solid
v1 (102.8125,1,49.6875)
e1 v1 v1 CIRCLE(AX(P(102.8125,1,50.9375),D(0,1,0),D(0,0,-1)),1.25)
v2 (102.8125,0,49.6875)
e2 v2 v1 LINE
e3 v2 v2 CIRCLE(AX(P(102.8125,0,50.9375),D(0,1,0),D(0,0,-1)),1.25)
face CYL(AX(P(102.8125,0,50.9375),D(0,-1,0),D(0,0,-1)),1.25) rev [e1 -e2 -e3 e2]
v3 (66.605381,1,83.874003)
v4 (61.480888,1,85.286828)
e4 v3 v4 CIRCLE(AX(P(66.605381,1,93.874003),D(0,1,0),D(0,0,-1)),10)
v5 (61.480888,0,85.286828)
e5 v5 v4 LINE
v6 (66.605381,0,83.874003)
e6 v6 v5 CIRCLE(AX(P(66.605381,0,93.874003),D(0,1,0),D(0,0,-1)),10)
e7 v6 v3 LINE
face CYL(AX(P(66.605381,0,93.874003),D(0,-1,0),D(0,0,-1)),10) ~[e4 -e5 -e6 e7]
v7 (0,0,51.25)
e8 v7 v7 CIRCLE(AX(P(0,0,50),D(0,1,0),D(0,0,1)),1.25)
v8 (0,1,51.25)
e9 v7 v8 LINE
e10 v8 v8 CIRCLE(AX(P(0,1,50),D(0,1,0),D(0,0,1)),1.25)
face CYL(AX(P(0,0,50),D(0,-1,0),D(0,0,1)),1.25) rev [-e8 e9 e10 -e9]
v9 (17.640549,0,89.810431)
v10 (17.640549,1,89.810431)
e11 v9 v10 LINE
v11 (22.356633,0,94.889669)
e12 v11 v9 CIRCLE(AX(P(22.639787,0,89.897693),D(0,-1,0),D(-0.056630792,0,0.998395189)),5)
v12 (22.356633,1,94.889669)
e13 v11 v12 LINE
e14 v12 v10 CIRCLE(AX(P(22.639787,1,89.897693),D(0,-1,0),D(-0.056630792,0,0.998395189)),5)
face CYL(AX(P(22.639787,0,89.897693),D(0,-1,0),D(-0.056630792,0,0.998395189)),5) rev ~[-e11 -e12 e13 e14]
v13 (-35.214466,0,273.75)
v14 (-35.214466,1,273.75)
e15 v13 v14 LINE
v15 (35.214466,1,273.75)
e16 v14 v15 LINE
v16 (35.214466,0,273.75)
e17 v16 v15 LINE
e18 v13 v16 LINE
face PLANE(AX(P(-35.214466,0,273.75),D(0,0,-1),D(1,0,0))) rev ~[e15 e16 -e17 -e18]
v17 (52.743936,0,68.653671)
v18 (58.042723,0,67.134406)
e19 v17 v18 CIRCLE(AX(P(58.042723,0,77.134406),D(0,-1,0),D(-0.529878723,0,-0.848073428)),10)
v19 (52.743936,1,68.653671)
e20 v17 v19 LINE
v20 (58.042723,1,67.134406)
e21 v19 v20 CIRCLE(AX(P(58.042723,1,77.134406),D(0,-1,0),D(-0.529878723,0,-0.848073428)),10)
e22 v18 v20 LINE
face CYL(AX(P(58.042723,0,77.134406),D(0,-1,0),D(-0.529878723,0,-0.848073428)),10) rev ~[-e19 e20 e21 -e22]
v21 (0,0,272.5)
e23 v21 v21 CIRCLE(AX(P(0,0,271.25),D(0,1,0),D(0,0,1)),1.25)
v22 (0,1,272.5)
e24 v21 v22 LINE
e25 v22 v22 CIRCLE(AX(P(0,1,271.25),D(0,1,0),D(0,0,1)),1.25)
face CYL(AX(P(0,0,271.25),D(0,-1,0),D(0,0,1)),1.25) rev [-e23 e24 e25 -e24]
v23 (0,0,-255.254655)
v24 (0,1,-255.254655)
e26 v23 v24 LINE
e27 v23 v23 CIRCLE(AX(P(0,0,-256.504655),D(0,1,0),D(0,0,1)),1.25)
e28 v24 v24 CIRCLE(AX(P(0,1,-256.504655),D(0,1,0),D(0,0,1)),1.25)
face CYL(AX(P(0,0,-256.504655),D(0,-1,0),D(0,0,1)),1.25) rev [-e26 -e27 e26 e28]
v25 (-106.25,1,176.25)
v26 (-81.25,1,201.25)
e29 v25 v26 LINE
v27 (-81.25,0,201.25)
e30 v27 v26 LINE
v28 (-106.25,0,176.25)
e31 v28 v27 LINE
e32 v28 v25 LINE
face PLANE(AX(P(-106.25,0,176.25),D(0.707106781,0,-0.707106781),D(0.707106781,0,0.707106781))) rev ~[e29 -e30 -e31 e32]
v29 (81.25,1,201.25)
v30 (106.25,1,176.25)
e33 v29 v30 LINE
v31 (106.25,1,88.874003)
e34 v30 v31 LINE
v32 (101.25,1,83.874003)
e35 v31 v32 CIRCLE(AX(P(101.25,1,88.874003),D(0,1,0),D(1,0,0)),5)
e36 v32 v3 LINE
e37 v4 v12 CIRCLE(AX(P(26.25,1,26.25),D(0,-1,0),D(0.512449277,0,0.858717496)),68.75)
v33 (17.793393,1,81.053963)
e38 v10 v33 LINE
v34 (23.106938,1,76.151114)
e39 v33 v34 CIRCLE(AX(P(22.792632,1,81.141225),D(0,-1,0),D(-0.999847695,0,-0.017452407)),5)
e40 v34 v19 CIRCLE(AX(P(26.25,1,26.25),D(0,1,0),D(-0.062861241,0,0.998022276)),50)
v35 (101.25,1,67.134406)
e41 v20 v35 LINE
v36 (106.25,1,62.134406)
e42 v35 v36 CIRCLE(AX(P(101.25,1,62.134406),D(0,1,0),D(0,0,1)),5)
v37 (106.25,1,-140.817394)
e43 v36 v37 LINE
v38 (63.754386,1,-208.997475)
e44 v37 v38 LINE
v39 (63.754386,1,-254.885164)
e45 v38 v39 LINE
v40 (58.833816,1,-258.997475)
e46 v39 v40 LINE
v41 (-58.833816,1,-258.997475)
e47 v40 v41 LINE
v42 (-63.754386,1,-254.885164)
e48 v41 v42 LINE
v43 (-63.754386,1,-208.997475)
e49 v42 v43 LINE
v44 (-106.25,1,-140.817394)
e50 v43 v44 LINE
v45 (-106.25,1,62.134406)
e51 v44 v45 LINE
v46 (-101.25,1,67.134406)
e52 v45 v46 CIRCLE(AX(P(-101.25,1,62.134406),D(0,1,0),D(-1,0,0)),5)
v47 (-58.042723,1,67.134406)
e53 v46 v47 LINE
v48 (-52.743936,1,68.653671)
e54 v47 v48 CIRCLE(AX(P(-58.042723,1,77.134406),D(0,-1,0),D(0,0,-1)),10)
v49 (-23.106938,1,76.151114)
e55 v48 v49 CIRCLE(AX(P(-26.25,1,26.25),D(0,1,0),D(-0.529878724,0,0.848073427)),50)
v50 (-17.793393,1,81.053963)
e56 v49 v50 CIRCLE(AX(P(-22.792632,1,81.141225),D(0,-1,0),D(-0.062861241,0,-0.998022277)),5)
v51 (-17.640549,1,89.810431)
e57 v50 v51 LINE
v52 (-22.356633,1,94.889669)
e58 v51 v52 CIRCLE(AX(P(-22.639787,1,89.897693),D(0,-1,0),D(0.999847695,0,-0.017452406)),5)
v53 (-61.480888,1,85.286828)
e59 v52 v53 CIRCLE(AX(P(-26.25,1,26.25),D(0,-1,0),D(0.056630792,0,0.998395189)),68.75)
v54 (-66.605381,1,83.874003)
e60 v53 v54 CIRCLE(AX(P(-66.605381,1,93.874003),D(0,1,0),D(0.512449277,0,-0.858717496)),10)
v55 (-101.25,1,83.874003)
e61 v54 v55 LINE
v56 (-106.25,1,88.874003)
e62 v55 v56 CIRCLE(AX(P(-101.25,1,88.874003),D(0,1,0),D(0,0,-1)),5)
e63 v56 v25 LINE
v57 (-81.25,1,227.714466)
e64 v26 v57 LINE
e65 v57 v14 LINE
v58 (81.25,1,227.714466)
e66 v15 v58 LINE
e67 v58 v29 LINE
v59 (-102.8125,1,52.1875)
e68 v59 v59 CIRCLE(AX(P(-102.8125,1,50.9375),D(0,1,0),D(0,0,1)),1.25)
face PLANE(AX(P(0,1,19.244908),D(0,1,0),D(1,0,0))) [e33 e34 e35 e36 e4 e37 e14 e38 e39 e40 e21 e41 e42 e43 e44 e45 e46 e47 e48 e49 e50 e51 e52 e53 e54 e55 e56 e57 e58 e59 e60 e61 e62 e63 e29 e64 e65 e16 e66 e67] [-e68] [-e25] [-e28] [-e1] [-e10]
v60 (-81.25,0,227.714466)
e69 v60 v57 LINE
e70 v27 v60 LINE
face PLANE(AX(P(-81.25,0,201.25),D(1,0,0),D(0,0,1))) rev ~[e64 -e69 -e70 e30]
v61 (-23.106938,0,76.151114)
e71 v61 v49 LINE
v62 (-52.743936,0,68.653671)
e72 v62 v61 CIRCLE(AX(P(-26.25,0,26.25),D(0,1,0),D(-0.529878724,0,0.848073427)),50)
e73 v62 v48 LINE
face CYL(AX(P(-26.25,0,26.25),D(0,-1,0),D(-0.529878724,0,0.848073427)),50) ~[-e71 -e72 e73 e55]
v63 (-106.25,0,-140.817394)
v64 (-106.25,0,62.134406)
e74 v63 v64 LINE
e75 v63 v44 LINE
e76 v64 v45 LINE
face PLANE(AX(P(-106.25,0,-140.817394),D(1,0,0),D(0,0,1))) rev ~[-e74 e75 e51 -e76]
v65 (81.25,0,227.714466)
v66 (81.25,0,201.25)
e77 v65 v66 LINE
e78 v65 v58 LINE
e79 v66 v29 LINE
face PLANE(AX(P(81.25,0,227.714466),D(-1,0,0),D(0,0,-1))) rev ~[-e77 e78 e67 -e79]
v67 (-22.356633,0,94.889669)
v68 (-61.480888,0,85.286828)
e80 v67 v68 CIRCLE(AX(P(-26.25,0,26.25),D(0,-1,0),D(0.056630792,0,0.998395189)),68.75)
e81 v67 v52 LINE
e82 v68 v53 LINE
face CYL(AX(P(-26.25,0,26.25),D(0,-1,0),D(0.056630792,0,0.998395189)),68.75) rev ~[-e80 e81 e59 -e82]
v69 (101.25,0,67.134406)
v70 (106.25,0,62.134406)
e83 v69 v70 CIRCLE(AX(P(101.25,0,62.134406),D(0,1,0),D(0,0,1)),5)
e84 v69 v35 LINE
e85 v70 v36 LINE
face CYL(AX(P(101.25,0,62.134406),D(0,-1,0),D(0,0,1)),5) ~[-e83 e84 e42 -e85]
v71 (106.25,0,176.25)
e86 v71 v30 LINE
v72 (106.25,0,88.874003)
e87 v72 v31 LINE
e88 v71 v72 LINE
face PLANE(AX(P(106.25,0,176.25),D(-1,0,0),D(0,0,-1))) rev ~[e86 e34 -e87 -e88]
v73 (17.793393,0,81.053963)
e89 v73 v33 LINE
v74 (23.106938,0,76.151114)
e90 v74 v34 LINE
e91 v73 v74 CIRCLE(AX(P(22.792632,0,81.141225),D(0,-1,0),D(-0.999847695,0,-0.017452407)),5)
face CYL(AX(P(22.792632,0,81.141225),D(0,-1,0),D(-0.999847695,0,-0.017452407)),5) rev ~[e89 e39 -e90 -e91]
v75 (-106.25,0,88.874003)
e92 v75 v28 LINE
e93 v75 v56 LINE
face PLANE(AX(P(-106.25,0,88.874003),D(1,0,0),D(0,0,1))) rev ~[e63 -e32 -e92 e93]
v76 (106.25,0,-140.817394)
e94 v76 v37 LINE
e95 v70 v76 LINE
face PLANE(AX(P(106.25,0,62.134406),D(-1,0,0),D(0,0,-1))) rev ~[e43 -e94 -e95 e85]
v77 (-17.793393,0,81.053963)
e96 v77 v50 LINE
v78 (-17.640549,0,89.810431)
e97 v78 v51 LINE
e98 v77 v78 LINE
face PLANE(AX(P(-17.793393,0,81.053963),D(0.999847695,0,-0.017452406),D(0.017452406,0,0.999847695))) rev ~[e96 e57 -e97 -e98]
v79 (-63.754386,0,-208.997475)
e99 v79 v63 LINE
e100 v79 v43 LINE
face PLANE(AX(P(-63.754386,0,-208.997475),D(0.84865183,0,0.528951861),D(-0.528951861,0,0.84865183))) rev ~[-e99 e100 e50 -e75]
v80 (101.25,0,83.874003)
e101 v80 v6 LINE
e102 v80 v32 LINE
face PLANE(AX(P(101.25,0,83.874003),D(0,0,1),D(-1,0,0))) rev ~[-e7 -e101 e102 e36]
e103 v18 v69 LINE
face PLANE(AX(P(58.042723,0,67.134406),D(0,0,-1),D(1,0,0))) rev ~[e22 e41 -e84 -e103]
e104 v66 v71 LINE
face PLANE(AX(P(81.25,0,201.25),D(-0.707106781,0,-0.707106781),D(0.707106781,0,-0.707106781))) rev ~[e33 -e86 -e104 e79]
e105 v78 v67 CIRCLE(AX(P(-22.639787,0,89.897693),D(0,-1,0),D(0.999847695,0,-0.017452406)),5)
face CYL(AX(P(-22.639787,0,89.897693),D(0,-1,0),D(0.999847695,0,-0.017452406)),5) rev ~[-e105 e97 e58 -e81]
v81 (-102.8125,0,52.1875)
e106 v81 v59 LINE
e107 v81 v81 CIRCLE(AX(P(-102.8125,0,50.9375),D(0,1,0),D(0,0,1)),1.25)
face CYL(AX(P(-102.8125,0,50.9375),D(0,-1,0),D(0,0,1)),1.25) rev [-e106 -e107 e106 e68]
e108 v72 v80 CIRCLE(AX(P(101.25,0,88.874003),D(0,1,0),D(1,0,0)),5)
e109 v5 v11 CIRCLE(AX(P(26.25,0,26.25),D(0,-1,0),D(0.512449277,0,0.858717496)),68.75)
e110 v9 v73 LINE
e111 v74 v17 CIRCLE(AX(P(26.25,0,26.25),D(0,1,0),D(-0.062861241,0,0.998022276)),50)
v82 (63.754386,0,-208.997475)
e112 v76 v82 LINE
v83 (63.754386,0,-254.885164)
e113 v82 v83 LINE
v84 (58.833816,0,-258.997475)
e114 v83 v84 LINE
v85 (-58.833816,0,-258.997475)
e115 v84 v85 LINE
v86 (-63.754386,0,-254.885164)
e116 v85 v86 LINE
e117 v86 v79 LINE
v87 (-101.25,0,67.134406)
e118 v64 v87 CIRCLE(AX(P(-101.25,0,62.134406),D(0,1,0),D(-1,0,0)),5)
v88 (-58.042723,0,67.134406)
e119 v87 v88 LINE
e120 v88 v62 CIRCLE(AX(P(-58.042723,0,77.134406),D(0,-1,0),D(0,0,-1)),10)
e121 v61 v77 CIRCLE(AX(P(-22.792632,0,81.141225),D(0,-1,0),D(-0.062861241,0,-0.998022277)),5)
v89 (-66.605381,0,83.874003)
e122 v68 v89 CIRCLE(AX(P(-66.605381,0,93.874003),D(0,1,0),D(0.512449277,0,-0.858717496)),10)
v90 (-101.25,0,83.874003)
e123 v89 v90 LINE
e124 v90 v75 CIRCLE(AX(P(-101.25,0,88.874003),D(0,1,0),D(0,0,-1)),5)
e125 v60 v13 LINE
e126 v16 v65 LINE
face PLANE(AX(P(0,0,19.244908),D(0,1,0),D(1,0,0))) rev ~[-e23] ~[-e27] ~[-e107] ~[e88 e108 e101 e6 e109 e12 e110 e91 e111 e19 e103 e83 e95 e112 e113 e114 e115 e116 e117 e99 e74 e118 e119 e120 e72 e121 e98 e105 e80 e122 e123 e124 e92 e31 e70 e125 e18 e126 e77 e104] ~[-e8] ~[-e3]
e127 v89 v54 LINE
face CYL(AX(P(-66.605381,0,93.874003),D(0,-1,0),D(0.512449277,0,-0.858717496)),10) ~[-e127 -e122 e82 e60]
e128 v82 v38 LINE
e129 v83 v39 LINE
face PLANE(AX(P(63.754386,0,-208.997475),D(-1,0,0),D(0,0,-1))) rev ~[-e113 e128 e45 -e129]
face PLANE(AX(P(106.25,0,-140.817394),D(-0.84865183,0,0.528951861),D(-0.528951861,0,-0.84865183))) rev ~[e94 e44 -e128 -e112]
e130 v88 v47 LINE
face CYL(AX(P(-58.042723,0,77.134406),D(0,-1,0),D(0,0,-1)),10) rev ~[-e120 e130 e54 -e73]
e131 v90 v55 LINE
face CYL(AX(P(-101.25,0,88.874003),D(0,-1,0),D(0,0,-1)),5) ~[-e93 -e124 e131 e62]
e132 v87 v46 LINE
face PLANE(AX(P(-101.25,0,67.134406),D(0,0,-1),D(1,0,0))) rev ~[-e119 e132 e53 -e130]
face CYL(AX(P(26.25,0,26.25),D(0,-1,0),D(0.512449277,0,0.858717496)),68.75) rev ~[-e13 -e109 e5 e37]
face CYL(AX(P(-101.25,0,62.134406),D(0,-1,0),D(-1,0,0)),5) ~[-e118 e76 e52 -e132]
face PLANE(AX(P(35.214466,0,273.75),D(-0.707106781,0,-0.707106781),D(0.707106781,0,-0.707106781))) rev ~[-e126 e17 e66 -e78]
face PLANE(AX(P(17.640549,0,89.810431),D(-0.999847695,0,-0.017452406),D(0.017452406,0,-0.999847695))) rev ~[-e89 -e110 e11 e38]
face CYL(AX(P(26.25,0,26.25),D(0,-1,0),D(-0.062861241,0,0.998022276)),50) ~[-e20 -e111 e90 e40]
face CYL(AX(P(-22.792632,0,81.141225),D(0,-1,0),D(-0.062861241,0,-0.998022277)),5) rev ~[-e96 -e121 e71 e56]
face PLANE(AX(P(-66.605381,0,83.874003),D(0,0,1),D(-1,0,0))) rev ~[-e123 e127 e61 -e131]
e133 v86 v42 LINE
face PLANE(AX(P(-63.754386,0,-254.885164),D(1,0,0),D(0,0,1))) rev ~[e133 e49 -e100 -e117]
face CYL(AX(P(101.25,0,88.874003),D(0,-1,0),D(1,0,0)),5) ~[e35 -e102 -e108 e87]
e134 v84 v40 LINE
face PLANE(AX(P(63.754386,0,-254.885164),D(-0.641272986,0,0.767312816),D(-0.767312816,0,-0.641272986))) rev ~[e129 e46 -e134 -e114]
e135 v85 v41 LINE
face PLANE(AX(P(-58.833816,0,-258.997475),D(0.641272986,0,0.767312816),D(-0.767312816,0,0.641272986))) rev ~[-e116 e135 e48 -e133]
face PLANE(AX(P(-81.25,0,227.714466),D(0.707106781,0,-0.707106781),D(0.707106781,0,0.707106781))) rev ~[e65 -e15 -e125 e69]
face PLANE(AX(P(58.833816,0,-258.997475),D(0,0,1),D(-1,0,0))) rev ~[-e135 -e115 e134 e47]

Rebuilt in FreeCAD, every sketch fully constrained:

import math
import FreeCAD as App
import Part
import Sketcher
Q = App.Units.Quantity

doc = App.newDocument("Part")
body = doc.addObject("PartDesign::Body", "Body")

sketch1 = body.newObject("Sketcher::SketchObject", "Sketch")
sketch1.AttachmentSupport = (doc.getObject("XZ_Plane"), [""])
sketch1.MapMode = "FlatFace"
sketch1.addGeometry([
    Part.LineSegment(App.Vector(-35.214466, 273.75, 0), App.Vector(35.214466, 273.75, 0)),
    Part.LineSegment(App.Vector(35.214466, 273.75, 0), App.Vector(81.25, 227.714466, 0)),
    Part.LineSegment(App.Vector(81.25, 227.714466, 0), App.Vector(81.25, 201.25, 0)),
    Part.LineSegment(App.Vector(81.25, 201.25, 0), App.Vector(106.25, 176.25, 0)),
    Part.LineSegment(App.Vector(106.25, 176.25, 0), App.Vector(106.25, 88.874003, 0)),
    Part.ArcOfCircle(Part.Circle(App.Vector(101.25, 88.874003, 0), App.Vector(0, 0, 1), 5), math.radians(-90), math.radians(0)),
    Part.LineSegment(App.Vector(101.25, 83.874003, 0), App.Vector(66.605381, 83.874003, 0)),
    Part.ArcOfCircle(Part.Circle(App.Vector(66.605381, 93.874003, 0), App.Vector(0, 0, 1), 10), math.radians(-120.827113), math.radians(-90)),
    Part.ArcOfCircle(Part.Circle(App.Vector(26.25, 26.25, 0), App.Vector(0, 0, 1), 68.75), math.radians(59.172887), math.radians(93.246442)),
    Part.ArcOfCircle(Part.Circle(App.Vector(22.639787, 89.897693, 0), App.Vector(0, 0, 1), 5), math.radians(93.246442), math.radians(181)),
    Part.LineSegment(App.Vector(17.640549, 89.810431, 0), App.Vector(17.793393, 81.053963, 0)),
    Part.ArcOfCircle(Part.Circle(App.Vector(22.792632, 81.141225, 0), App.Vector(0, 0, 1), 5), math.radians(-179), math.radians(-86.39594)),
    Part.ArcOfCircle(Part.Circle(App.Vector(26.25, 26.25, 0), App.Vector(0, 0, 1), 50), math.radians(58.002739), math.radians(93.60406)),
    Part.ArcOfCircle(Part.Circle(App.Vector(58.042723, 77.134406, 0), App.Vector(0, 0, 1), 10), math.radians(-121.997261), math.radians(-90)),
    Part.LineSegment(App.Vector(58.042723, 67.134406, 0), App.Vector(101.25, 67.134406, 0)),
    Part.ArcOfCircle(Part.Circle(App.Vector(101.25, 62.134406, 0), App.Vector(0, 0, 1), 5), math.radians(0), math.radians(90)),
    Part.LineSegment(App.Vector(106.25, 62.134406, 0), App.Vector(106.25, -140.817394, 0)),
    Part.LineSegment(App.Vector(106.25, -140.817394, 0), App.Vector(63.754386, -208.997475, 0)),
    Part.LineSegment(App.Vector(63.754386, -208.997475, 0), App.Vector(63.754386, -254.885164, 0)),
    Part.LineSegment(App.Vector(63.754386, -254.885164, 0), App.Vector(58.833816, -258.997475, 0)),
    Part.LineSegment(App.Vector(58.833816, -258.997475, 0), App.Vector(-58.833816, -258.997475, 0)),
    Part.LineSegment(App.Vector(-58.833816, -258.997475, 0), App.Vector(-63.754386, -254.885164, 0)),
    Part.LineSegment(App.Vector(-63.754386, -254.885164, 0), App.Vector(-63.754386, -208.997475, 0)),
    Part.LineSegment(App.Vector(-63.754386, -208.997475, 0), App.Vector(-106.25, -140.817394, 0)),
    Part.LineSegment(App.Vector(-106.25, -140.817394, 0), App.Vector(-106.25, 62.134406, 0)),
    Part.ArcOfCircle(Part.Circle(App.Vector(-101.25, 62.134406, 0), App.Vector(0, 0, 1), 5), math.radians(90), math.radians(180)),
    Part.LineSegment(App.Vector(-101.25, 67.134406, 0), App.Vector(-58.042723, 67.134406, 0)),
    Part.ArcOfCircle(Part.Circle(App.Vector(-58.042723, 77.134406, 0), App.Vector(0, 0, 1), 10), math.radians(-90), math.radians(-58.002739)),
    Part.ArcOfCircle(Part.Circle(App.Vector(-26.25, 26.25, 0), App.Vector(0, 0, 1), 50), math.radians(86.39594), math.radians(121.997261)),
    Part.ArcOfCircle(Part.Circle(App.Vector(-22.792632, 81.141225, 0), App.Vector(0, 0, 1), 5), math.radians(-93.60406), math.radians(-1)),
    Part.LineSegment(App.Vector(-17.793393, 81.053963, 0), App.Vector(-17.640549, 89.810431, 0)),
    Part.ArcOfCircle(Part.Circle(App.Vector(-22.639787, 89.897693, 0), App.Vector(0, 0, 1), 5), math.radians(-1), math.radians(86.753558)),
    Part.ArcOfCircle(Part.Circle(App.Vector(-26.25, 26.25, 0), App.Vector(0, 0, 1), 68.75), math.radians(86.753558), math.radians(120.827113)),
    Part.ArcOfCircle(Part.Circle(App.Vector(-66.605381, 93.874003, 0), App.Vector(0, 0, 1), 10), math.radians(-90), math.radians(-59.172887)),
    Part.LineSegment(App.Vector(-66.605381, 83.874003, 0), App.Vector(-101.25, 83.874003, 0)),
    Part.ArcOfCircle(Part.Circle(App.Vector(-101.25, 88.874003, 0), App.Vector(0, 0, 1), 5), math.radians(180), math.radians(270)),
    Part.LineSegment(App.Vector(-106.25, 88.874003, 0), App.Vector(-106.25, 176.25, 0)),
    Part.LineSegment(App.Vector(-106.25, 176.25, 0), App.Vector(-81.25, 201.25, 0)),
    Part.LineSegment(App.Vector(-81.25, 201.25, 0), App.Vector(-81.25, 227.714466, 0)),
    Part.LineSegment(App.Vector(-81.25, 227.714466, 0), App.Vector(-35.214466, 273.75, 0)),
    Part.Circle(App.Vector(-102.8125, 50.9375, 0), App.Vector(0, 0, 1), 1.25),
    Part.Circle(App.Vector(0, 271.25, 0), App.Vector(0, 0, 1), 1.25),
    Part.Circle(App.Vector(0, 50, 0), App.Vector(0, 0, 1), 1.25),
    Part.Circle(App.Vector(102.8125, 50.9375, 0), App.Vector(0, 0, 1), 1.25),
    Part.Circle(App.Vector(0, -256.504655, 0), App.Vector(0, 0, 1), 1.25),
], False)
sketch1.addConstraint([
    Sketcher.Constraint("Coincident", 0, 2, 1, 1),
    Sketcher.Constraint("Coincident", 1, 2, 2, 1),
    Sketcher.Constraint("Coincident", 2, 2, 3, 1),
    Sketcher.Constraint("Coincident", 3, 2, 4, 1),
    Sketcher.Constraint("Tangent", 4, 2, 5, 2),
    Sketcher.Constraint("Tangent", 5, 1, 6, 1),
    Sketcher.Constraint("Tangent", 6, 2, 7, 2),
    Sketcher.Constraint("Tangent", 7, 1, 8, 1),
    Sketcher.Constraint("Tangent", 8, 2, 9, 1),
    Sketcher.Constraint("Tangent", 9, 2, 10, 1),
    Sketcher.Constraint("Tangent", 10, 2, 11, 1),
    Sketcher.Constraint("Tangent", 11, 2, 12, 2),
    Sketcher.Constraint("Tangent", 12, 1, 13, 1),
    Sketcher.Constraint("Tangent", 13, 2, 14, 1),
    Sketcher.Constraint("Tangent", 14, 2, 15, 2),
    Sketcher.Constraint("Tangent", 15, 1, 16, 1),
    Sketcher.Constraint("Coincident", 16, 2, 17, 1),
    Sketcher.Constraint("Coincident", 17, 2, 18, 1),
    Sketcher.Constraint("Coincident", 18, 2, 19, 1),
    Sketcher.Constraint("Coincident", 19, 2, 20, 1),
    Sketcher.Constraint("Coincident", 20, 2, 21, 1),
    Sketcher.Constraint("Coincident", 21, 2, 22, 1),
    Sketcher.Constraint("Coincident", 22, 2, 23, 1),
    Sketcher.Constraint("Coincident", 23, 2, 24, 1),
    Sketcher.Constraint("Tangent", 24, 2, 25, 2),
    Sketcher.Constraint("Tangent", 25, 1, 26, 1),
    Sketcher.Constraint("Tangent", 26, 2, 27, 1),
    Sketcher.Constraint("Tangent", 27, 2, 28, 2),
    Sketcher.Constraint("Tangent", 28, 1, 29, 1),
    Sketcher.Constraint("Tangent", 29, 2, 30, 1),
    Sketcher.Constraint("Tangent", 30, 2, 31, 1),
    Sketcher.Constraint("Tangent", 31, 2, 32, 1),
    Sketcher.Constraint("Tangent", 32, 2, 33, 2),
    Sketcher.Constraint("Tangent", 33, 1, 34, 1),
    Sketcher.Constraint("Tangent", 34, 2, 35, 2),
    Sketcher.Constraint("Tangent", 35, 1, 36, 1),
    Sketcher.Constraint("Coincident", 36, 2, 37, 1),
    Sketcher.Constraint("Coincident", 37, 2, 38, 1),
    Sketcher.Constraint("Coincident", 38, 2, 39, 1),
    Sketcher.Constraint("Coincident", 39, 2, 0, 1),
    Sketcher.Constraint("Horizontal", 0),
    Sketcher.Constraint("Vertical", 2),
    Sketcher.Constraint("Vertical", 4),
    Sketcher.Constraint("Horizontal", 6),
    Sketcher.Constraint("Horizontal", 14),
    Sketcher.Constraint("Vertical", 16),
    Sketcher.Constraint("Vertical", 18),
    Sketcher.Constraint("Horizontal", 20),
    Sketcher.Constraint("Vertical", 22),
    Sketcher.Constraint("Vertical", 24),
    Sketcher.Constraint("Horizontal", 26),
    Sketcher.Constraint("Horizontal", 34),
    Sketcher.Constraint("Vertical", 36),
    Sketcher.Constraint("Vertical", 38),
    Sketcher.Constraint("Coincident", 12, 3, 8, 3),
    Sketcher.Constraint("Coincident", 32, 3, 28, 3),
    Sketcher.Constraint("Equal", 5, 9),
    Sketcher.Constraint("Equal", 9, 11),
    Sketcher.Constraint("Equal", 7, 13),
    Sketcher.Constraint("Equal", 11, 15),
    Sketcher.Constraint("Equal", 15, 25),
    Sketcher.Constraint("Equal", 13, 27),
    Sketcher.Constraint("Equal", 12, 28),
    Sketcher.Constraint("Equal", 25, 29),
    Sketcher.Constraint("Equal", 29, 31),
    Sketcher.Constraint("Equal", 8, 32),
    Sketcher.Constraint("Equal", 27, 33),
    Sketcher.Constraint("Equal", 31, 35),
    Sketcher.Constraint("Equal", 40, 41),
    Sketcher.Constraint("Equal", 41, 42),
    Sketcher.Constraint("Equal", 42, 43),
    Sketcher.Constraint("Equal", 43, 44),
    Sketcher.Constraint("Symmetric", 15, 3, 25, 3, -2),
    Sketcher.Constraint("Symmetric", 8, 3, 28, 3, -2),
    Sketcher.Constraint("Symmetric", 5, 3, 35, 3, -2),
    Sketcher.Constraint("Symmetric", 40, 3, 43, 3, -2),
    Sketcher.Constraint("Symmetric", 18, 2, 21, 2, -2),
    Sketcher.Constraint("Symmetric", 10, 2, 29, 2, -2),
    Sketcher.Constraint("Symmetric", 2, 2, 37, 2, -2),
    Sketcher.Constraint("PointOnObject", 41, 3, -2),
    Sketcher.Constraint("PointOnObject", 42, 3, -2),
    Sketcher.Constraint("PointOnObject", 44, 3, -2),
    Sketcher.Constraint("Parallel", 1, 3),
    Sketcher.Constraint("Perpendicular", 3, 37),
    Sketcher.Constraint("Parallel", 37, 39),
    Sketcher.Constraint("Horizontal", 17, 2, 22, 2),
    Sketcher.Constraint("Horizontal", 16, 2, 23, 2),
    Sketcher.Constraint("Horizontal", 3, 2, 36, 2),
    Sketcher.Constraint("Horizontal", 1, 2, 38, 2),
    Sketcher.Constraint("Vertical", 5, 3, 15, 3),
    Sketcher.Constraint("Equal", 19, 21),
    Sketcher.Constraint("Radius", 5, Q("5 mm")),
    Sketcher.Constraint("Radius", 7, Q("10 mm")),
    Sketcher.Constraint("Radius", 12, Q("50 mm")),
    Sketcher.Constraint("Diameter", 40, Q("2.5 mm")),
    Sketcher.Constraint("Angle", 10, Q("-89 deg")),
    Sketcher.Constraint("Radius", 8, Q("68.75 mm")),
    Sketcher.Constraint("DistanceY", -1, 1, 42, 3, Q("50 mm")),
    Sketcher.Constraint("DistanceX", -1, 1, 5, 3, Q("101.25 mm")),
    Sketcher.Constraint("DistanceX", -1, 1, 8, 3, Q("26.25 mm")),
    Sketcher.Constraint("DistanceY", -1, 1, 8, 3, Q("26.25 mm")),
    Sketcher.Constraint("DistanceY", -1, 1, 41, 3, Q("271.25 mm")),
    Sketcher.Constraint("DistanceY", -1, 1, 0, 2, Q("273.75 mm")),
    Sketcher.Constraint("DistanceX", -1, 1, 1, 2, Q("81.25 mm")),
    Sketcher.Constraint("DistanceY", -1, 1, 2, 2, Q("201.25 mm")),
    Sketcher.Constraint("DistanceY", 16, 2, 16, 1, Q("202.951799 mm")),
    Sketcher.Constraint("DistanceX", 6, 2, 6, 1, Q("34.644619 mm")),
    Sketcher.Constraint("DistanceX", 20, 2, 20, 1, Q("117.667632 mm")),
    Sketcher.Constraint("DistanceY", 18, 2, 18, 1, Q("45.88769 mm")),
    Sketcher.Constraint("DistanceX", 40, 3, -1, 1, Q("102.8125 mm")),
    Sketcher.Constraint("DistanceY", -1, 1, 40, 3, Q("50.9375 mm")),
    Sketcher.Constraint("Distance", 19, Q("6.41273 mm")),
    Sketcher.Constraint("DistanceX", 0, 1, 0, 2, Q("70.428932 mm")),
    Sketcher.Constraint("DistanceX", 14, 1, 14, 2, Q("43.207277 mm")),
    Sketcher.Constraint("DistanceX", -1, 1, 11, 3, Q("22.792632 mm")),
    Sketcher.Constraint("Distance", 17, Q("80.339285 mm")),
    Sketcher.Constraint("DistanceY", 44, 3, -1, 1, Q("256.504655 mm")),
    Sketcher.Constraint("DistanceX", -1, 1, 17, 2, Q("63.754386 mm")),
])
pad1 = body.newObject("PartDesign::Pad", "Pad")
pad1.Profile = sketch1
pad1.Length = 1
pad1.Reversed = True

doc.recompute()
